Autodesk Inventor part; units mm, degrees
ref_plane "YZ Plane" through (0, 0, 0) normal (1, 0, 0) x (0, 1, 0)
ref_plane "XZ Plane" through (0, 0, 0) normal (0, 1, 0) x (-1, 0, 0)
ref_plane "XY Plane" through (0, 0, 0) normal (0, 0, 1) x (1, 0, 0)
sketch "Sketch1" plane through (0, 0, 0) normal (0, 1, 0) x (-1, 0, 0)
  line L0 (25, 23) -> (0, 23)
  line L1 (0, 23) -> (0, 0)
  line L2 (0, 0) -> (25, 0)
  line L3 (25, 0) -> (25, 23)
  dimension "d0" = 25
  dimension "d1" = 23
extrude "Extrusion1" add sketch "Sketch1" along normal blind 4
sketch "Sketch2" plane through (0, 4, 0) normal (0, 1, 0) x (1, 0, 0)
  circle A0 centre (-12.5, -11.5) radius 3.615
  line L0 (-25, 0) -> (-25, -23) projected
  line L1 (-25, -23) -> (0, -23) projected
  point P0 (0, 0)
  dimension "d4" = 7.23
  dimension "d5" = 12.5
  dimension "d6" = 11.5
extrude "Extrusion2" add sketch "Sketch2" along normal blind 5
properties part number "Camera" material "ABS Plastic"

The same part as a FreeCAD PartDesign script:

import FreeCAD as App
import Part
import Sketcher

V = App.Vector


def add_polygon(sketch, points):
    """Adds a closed chain of lines whose ends are joined by coincident constraints."""
    first, n = sketch.GeometryCount, len(points)
    for a, b in zip(points, points[1:] + points[:1]):
        sketch.addGeometry(Part.LineSegment(App.Vector(*a, 0), App.Vector(*b, 0)), False)
    for i in range(n):
        sketch.addConstraint(Sketcher.Constraint("Coincident", first + i, 2, first + (i + 1) % n, 1))

doc = App.newDocument("Part")
body = doc.addObject("PartDesign::Body", "Body")

sketch1 = body.newObject("Sketcher::SketchObject", "Sketch")
sketch1.AttachmentSupport = (doc.getObject("XZ_Plane"), [""])
sketch1.MapMode = "FlatFace"
add_polygon(sketch1, [(-25, 0), (-25, 23), (0, 23), (0, 0)])
sketch1.addConstraint(Sketcher.Constraint("Vertical", 0))
sketch1.addConstraint(Sketcher.Constraint("Horizontal", 1))
sketch1.addConstraint(Sketcher.Constraint("Vertical", 2))
sketch1.addConstraint(Sketcher.Constraint("Horizontal", 3))
sketch1.addConstraint(Sketcher.Constraint("Coincident", 2, 2, -1, 1))
sketch1.addConstraint(Sketcher.Constraint("DistanceX", 1, 1, 1, 2, 25.0))
sketch1.addConstraint(Sketcher.Constraint("DistanceY", 0, 1, 0, 2, 23.0))
pad1 = body.newObject("PartDesign::Pad", "Pad")
pad1.Profile = sketch1
pad1.Length = 4
pad1.Reversed = True

sketch2 = body.newObject("Sketcher::SketchObject", "Sketch001")
sketch2.AttachmentSupport = (doc.getObject("XZ_Plane"), [""])
sketch2.MapMode = "FlatFace"
sketch2.AttachmentOffset = App.Placement(V(0, 0, -4), App.Rotation())
sketch2.addGeometry(Part.Circle(V(-12.5, 11.5, 0), V(0, 0, 1), 3.6), False)
sketch2.addConstraint(Sketcher.Constraint("Diameter", 0, 7.23))
sketch2.addConstraint(Sketcher.Constraint("DistanceX", 0, 3, -1, 1, 12.5))
sketch2.addConstraint(Sketcher.Constraint("DistanceY", -1, 1, 0, 3, 11.5))
pad2 = body.newObject("PartDesign::Pad", "Pad001")
pad2.Profile = sketch2
pad2.Length = 5
pad2.Reversed = True

doc.recompute()
